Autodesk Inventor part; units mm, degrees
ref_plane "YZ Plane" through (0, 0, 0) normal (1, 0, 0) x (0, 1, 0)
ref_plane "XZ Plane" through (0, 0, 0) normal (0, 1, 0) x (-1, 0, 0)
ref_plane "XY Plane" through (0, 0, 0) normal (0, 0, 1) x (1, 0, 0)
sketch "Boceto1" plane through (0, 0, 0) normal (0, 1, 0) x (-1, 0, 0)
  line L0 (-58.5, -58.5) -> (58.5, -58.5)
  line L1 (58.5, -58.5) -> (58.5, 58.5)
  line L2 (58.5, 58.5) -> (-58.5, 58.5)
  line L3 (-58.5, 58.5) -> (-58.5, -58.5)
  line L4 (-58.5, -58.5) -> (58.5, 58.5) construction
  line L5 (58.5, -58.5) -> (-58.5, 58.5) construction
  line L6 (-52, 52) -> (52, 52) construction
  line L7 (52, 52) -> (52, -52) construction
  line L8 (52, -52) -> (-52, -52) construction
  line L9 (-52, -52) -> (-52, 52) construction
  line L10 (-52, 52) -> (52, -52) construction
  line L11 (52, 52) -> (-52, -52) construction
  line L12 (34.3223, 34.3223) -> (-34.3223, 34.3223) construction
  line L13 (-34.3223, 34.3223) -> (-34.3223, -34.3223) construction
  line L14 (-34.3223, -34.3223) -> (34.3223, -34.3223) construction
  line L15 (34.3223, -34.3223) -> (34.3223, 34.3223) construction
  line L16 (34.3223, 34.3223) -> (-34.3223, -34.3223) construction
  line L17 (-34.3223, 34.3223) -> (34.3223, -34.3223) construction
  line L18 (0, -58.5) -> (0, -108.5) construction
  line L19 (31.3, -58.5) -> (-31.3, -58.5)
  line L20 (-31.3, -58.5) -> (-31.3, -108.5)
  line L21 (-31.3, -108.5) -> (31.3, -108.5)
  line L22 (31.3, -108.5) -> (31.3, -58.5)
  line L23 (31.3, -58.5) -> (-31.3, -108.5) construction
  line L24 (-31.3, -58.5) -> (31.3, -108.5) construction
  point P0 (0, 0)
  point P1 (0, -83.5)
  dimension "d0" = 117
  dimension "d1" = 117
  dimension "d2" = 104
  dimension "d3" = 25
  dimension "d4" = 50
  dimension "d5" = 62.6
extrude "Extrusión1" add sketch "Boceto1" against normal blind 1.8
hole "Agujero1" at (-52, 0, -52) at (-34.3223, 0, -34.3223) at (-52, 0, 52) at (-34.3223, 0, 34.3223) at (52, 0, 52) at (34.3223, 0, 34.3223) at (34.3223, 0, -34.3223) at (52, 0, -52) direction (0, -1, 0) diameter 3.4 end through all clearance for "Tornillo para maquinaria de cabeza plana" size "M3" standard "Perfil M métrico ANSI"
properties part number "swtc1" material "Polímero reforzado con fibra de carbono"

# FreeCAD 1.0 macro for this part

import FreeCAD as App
import Part
import Sketcher

doc = App.newDocument("Part")
body = doc.addObject("PartDesign::Body", "Body")

# Sketch on XZ plane
sketch1 = body.newObject("Sketcher::SketchObject", "Sketch")
sketch1.AttachmentSupport = (doc.getObject("XZ_Plane"), [""])
sketch1.MapMode = "FlatFace"
sketch1.addGeometry(Part.LineSegment(App.Vector(58, 58, 0), App.Vector(58, -58, 0)), False)
sketch1.addGeometry(Part.LineSegment(App.Vector(58, -58, 0), App.Vector(31, -58, 0)), False)
sketch1.addGeometry(Part.LineSegment(App.Vector(31, -58, 0), App.Vector(31, -108, 0)), False)
sketch1.addGeometry(Part.LineSegment(App.Vector(31, -108, 0), App.Vector(-31, -108, 0)), False)
sketch1.addGeometry(Part.LineSegment(App.Vector(-31, -108, 0), App.Vector(-31, -58, 0)), False)
sketch1.addGeometry(Part.LineSegment(App.Vector(-31, -58, 0), App.Vector(-58, -58, 0)), False)
sketch1.addGeometry(Part.LineSegment(App.Vector(-58, -58, 0), App.Vector(-58, 58, 0)), False)
sketch1.addGeometry(Part.LineSegment(App.Vector(-58, 58, 0), App.Vector(58, 58, 0)), False)
sketch1.addConstraint(Sketcher.Constraint("Coincident", 0, 2, 1, 1))
sketch1.addConstraint(Sketcher.Constraint("Coincident", 1, 2, 2, 1))
sketch1.addConstraint(Sketcher.Constraint("Coincident", 2, 2, 3, 1))
sketch1.addConstraint(Sketcher.Constraint("Coincident", 3, 2, 4, 1))
sketch1.addConstraint(Sketcher.Constraint("Coincident", 4, 2, 5, 1))
sketch1.addConstraint(Sketcher.Constraint("Coincident", 5, 2, 6, 1))
sketch1.addConstraint(Sketcher.Constraint("Coincident", 6, 2, 7, 1))
sketch1.addConstraint(Sketcher.Constraint("Coincident", 7, 2, 0, 1))
sketch1.addConstraint(Sketcher.Constraint("Vertical", 0))
sketch1.addConstraint(Sketcher.Constraint("Horizontal", 1))
sketch1.addConstraint(Sketcher.Constraint("Vertical", 2))
sketch1.addConstraint(Sketcher.Constraint("Horizontal", 3))
sketch1.addConstraint(Sketcher.Constraint("Vertical", 4))
sketch1.addConstraint(Sketcher.Constraint("Horizontal", 5))
sketch1.addConstraint(Sketcher.Constraint("Vertical", 6))
sketch1.addConstraint(Sketcher.Constraint("Horizontal", 7))
sketch1.addConstraint(Sketcher.Constraint("Symmetric", 0, 2, 6, 2, -1, 1))
sketch1.addConstraint(Sketcher.Constraint("Symmetric", 1, 2, 4, 2, -2))
sketch1.addConstraint(Sketcher.Constraint("Equal", 7, 0))
sketch1.addConstraint(Sketcher.Constraint("DistanceX", 7, 1, 7, 2, 117.0))
sketch1.addConstraint(Sketcher.Constraint("DistanceY", 2, 2, 2, 1, 50.0))
sketch1.addConstraint(Sketcher.Constraint("DistanceX", 3, 2, 3, 1, 62.6))
pad1 = body.newObject("PartDesign::Pad", "Pad")
pad1.Profile = sketch1
pad1.Length = 1.8

# Sketch on XZ plane
sketch2 = body.newObject("Sketcher::SketchObject", "Sketch001")
sketch2.AttachmentSupport = (doc.getObject("XZ_Plane"), [""])
sketch2.MapMode = "FlatFace"
sketch2.addGeometry(Part.Circle(App.Vector(-52, -52, 0), App.Vector(0, 0, 1), 1.7), False)
sketch2.addGeometry(Part.Circle(App.Vector(-34.3, -34.3, 0), App.Vector(0, 0, 1), 1.7), False)
sketch2.addGeometry(Part.Circle(App.Vector(-52, 52, 0), App.Vector(0, 0, 1), 1.7), False)
sketch2.addGeometry(Part.Circle(App.Vector(-34.3, 34.3, 0), App.Vector(0, 0, 1), 1.7), False)
sketch2.addGeometry(Part.Circle(App.Vector(52, 52, 0), App.Vector(0, 0, 1), 1.7), False)
sketch2.addGeometry(Part.Circle(App.Vector(34.3, 34.3, 0), App.Vector(0, 0, 1), 1.7), False)
sketch2.addGeometry(Part.Circle(App.Vector(34.3, -34.3, 0), App.Vector(0, 0, 1), 1.7), False)
sketch2.addGeometry(Part.Circle(App.Vector(52, -52, 0), App.Vector(0, 0, 1), 1.7), False)
sketch2.addConstraint(Sketcher.Constraint("Equal", 0, 1))
sketch2.addConstraint(Sketcher.Constraint("Equal", 1, 2))
sketch2.addConstraint(Sketcher.Constraint("Equal", 2, 3))
sketch2.addConstraint(Sketcher.Constraint("Equal", 3, 4))
sketch2.addConstraint(Sketcher.Constraint("Equal", 4, 5))
sketch2.addConstraint(Sketcher.Constraint("Equal", 5, 6))
sketch2.addConstraint(Sketcher.Constraint("Equal", 6, 7))
sketch2.addConstraint(Sketcher.Constraint("Symmetric", 0, 3, 4, 3, -1, 1))
sketch2.addConstraint(Sketcher.Constraint("Symmetric", 1, 3, 5, 3, -1, 1))
sketch2.addConstraint(Sketcher.Constraint("Symmetric", 3, 3, 6, 3, -1, 1))
sketch2.addConstraint(Sketcher.Constraint("Symmetric", 2, 3, 7, 3, -1, 1))
sketch2.addConstraint(Sketcher.Constraint("Symmetric", 2, 3, 4, 3, -2))
sketch2.addConstraint(Sketcher.Constraint("Symmetric", 3, 3, 5, 3, -2))
sketch2.addConstraint(Sketcher.Constraint("Diameter", 0, 3.4))
sketch2.addConstraint(Sketcher.Constraint("DistanceX", 0, 3, -1, 1, 52.0))
sketch2.addConstraint(Sketcher.Constraint("DistanceY", 0, 3, -1, 1, 52.0))
sketch2.addConstraint(Sketcher.Constraint("DistanceX", 1, 3, -1, 1, 34.3223))
sketch2.addConstraint(Sketcher.Constraint("DistanceY", 1, 3, -1, 1, 34.3223))
doc.recompute()
hole = body.newObject("PartDesign::Hole", "Hole")
hole.Profile = sketch2
hole.ThreadType = "None"
hole.Diameter = 3.4
hole.DepthType = "ThroughAll"
hole.Reversed = True

doc.recompute()
